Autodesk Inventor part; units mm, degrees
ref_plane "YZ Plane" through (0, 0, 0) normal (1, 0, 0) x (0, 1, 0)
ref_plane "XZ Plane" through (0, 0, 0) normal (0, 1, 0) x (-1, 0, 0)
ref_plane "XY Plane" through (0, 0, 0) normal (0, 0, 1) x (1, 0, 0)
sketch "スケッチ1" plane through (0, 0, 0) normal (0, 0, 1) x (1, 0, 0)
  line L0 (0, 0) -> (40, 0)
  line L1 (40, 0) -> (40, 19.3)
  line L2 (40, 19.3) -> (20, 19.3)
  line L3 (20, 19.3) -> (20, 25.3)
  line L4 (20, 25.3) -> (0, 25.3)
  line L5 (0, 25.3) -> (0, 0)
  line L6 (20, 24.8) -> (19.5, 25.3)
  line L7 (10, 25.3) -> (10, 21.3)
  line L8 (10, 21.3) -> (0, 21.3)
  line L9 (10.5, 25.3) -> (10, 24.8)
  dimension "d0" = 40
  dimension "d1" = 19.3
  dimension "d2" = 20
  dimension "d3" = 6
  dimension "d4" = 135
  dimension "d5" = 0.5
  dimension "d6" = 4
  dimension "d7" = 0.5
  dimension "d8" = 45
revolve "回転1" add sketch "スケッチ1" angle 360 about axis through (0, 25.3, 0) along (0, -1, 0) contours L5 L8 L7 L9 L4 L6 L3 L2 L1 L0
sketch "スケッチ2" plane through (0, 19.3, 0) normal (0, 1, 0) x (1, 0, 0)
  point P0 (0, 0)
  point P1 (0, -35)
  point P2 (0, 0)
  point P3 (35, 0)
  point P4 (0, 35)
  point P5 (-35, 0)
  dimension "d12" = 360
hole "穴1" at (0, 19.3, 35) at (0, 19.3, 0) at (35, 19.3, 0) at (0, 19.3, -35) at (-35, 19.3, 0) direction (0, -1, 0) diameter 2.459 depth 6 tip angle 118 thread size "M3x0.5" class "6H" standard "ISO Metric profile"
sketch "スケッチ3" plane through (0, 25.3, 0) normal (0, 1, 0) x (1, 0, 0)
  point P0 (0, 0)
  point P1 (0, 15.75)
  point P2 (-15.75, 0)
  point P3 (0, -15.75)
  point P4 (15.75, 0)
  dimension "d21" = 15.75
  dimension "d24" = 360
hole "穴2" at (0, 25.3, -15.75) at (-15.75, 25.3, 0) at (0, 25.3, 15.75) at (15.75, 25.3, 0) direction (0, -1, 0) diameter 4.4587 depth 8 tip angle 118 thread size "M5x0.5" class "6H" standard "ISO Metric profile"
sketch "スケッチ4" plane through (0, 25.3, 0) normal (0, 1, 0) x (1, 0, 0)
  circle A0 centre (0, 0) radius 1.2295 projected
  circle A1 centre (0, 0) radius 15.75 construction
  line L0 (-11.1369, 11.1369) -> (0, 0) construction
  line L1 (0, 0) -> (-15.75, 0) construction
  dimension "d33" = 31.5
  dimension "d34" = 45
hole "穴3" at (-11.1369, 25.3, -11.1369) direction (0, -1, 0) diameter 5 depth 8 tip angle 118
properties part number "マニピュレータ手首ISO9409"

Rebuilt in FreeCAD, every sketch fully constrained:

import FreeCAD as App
import Part
import Sketcher
Q = App.Units.Quantity


def add_polygon(sketch, points):
    """Adds a closed chain of lines whose ends are joined by coincident constraints."""
    first, n = sketch.GeometryCount, len(points)
    for a, b in zip(points, points[1:] + points[:1]):
        sketch.addGeometry(Part.LineSegment(App.Vector(*a, 0), App.Vector(*b, 0)), False)
    for i in range(n):
        sketch.addConstraint(Sketcher.Constraint("Coincident", first + i, 2, first + (i + 1) % n, 1))

doc = App.newDocument("Part")
body = doc.addObject("PartDesign::Body", "Body")

sketch1 = body.newObject("Sketcher::SketchObject", "Sketch")
sketch1.AttachmentSupport = (doc.getObject("XY_Plane"), [""])
sketch1.MapMode = "FlatFace"
add_polygon(sketch1, [(0, 21.3), (0, 0), (40, 0), (40, 19.3), (20, 19.3), (20, 24.8), (19.5, 25.3), (10.5, 25.3), (10, 24.8), (10, 21.3)])
sketch1.addConstraint(Sketcher.Constraint("Vertical", 0))
sketch1.addConstraint(Sketcher.Constraint("Horizontal", 1))
sketch1.addConstraint(Sketcher.Constraint("Vertical", 2))
sketch1.addConstraint(Sketcher.Constraint("Horizontal", 3))
sketch1.addConstraint(Sketcher.Constraint("Vertical", 4))
sketch1.addConstraint(Sketcher.Constraint("Horizontal", 6))
sketch1.addConstraint(Sketcher.Constraint("Vertical", 8))
sketch1.addConstraint(Sketcher.Constraint("Horizontal", 9))
sketch1.addConstraint(Sketcher.Constraint("Coincident", 0, 2, -1, 1))
sketch1.addConstraint(Sketcher.Constraint("Perpendicular", 5, 7))
sketch1.addConstraint(Sketcher.Constraint("Horizontal", 4, 2, 7, 2))
sketch1.addConstraint(Sketcher.Constraint("Equal", 5, 7))
sketch1.addConstraint(Sketcher.Constraint("DistanceX", 1, 1, 1, 2, Q("40 mm")))
sketch1.addConstraint(Sketcher.Constraint("DistanceX", 3, 2, 3, 1, Q("20 mm")))
sketch1.addConstraint(Sketcher.Constraint("DistanceY", 2, 1, 2, 2, Q("19.3 mm")))
sketch1.addConstraint(Sketcher.Constraint("DistanceY", 3, 2, 5, 2, Q("6 mm")))
sketch1.addConstraint(Sketcher.Constraint("DistanceY", 8, 2, 6, 2, Q("4 mm")))
sketch1.addConstraint(Sketcher.Constraint("DistanceX", 5, 2, 4, 2, Q("0.5 mm")))
sketch1.addConstraint(Sketcher.Constraint("DistanceX", 6, 2, 6, 1, Q("9 mm")))
revolution = body.newObject("PartDesign::Revolution", "Revolution")
revolution.Profile = sketch1
revolution.ReferenceAxis = (sketch1, ["V_Axis"])
revolution.Angle = 360

sketch2 = body.newObject("Sketcher::SketchObject", "Sketch001")
sketch2.AttachmentSupport = (doc.getObject("XZ_Plane"), [""])
sketch2.MapMode = "FlatFace"
sketch2.AttachmentOffset = App.Placement(App.Vector(0, 0, -19.3), App.Rotation())
sketch2.addGeometry(Part.Circle(App.Vector(0, 35, 0), App.Vector(0, 0, 1), 1.2), False)
sketch2.addGeometry(Part.Circle(App.Vector(0, 0, 0), App.Vector(0, 0, 1), 1.2), False)
sketch2.addGeometry(Part.Circle(App.Vector(35, 0, 0), App.Vector(0, 0, 1), 1.2), False)
sketch2.addGeometry(Part.Circle(App.Vector(0, -35, 0), App.Vector(0, 0, 1), 1.2), False)
sketch2.addGeometry(Part.Circle(App.Vector(-35, 0, 0), App.Vector(0, 0, 1), 1.2), False)
sketch2.addConstraint(Sketcher.Constraint("Coincident", 1, 3, -1, 1))
sketch2.addConstraint(Sketcher.Constraint("Equal", 0, 1))
sketch2.addConstraint(Sketcher.Constraint("Equal", 1, 2))
sketch2.addConstraint(Sketcher.Constraint("Equal", 2, 3))
sketch2.addConstraint(Sketcher.Constraint("Equal", 3, 4))
sketch2.addConstraint(Sketcher.Constraint("Symmetric", 0, 3, 3, 3, -1, 1))
sketch2.addConstraint(Sketcher.Constraint("Symmetric", 2, 3, 4, 3, -1, 1))
sketch2.addConstraint(Sketcher.Constraint("PointOnObject", 0, 3, -2))
sketch2.addConstraint(Sketcher.Constraint("PointOnObject", 2, 3, -1))
sketch2.addConstraint(Sketcher.Constraint("Diameter", 0, Q("2.459 mm")))
sketch2.addConstraint(Sketcher.Constraint("DistanceY", -1, 1, 0, 3, Q("35 mm")))
sketch2.addConstraint(Sketcher.Constraint("DistanceX", -1, 1, 2, 3, Q("35 mm")))
doc.recompute()
hole = body.newObject("PartDesign::Hole", "Hole")
hole.Profile = sketch2
hole.ThreadType = "None"
hole.Diameter = 2.459
hole.DepthType = "Dimension"
hole.Depth = 6
hole.DrillPoint = "Angled"
hole.DrillPointAngle = 118
hole.Reversed = True

sketch3 = body.newObject("Sketcher::SketchObject", "Sketch002")
sketch3.AttachmentSupport = (doc.getObject("XZ_Plane"), [""])
sketch3.MapMode = "FlatFace"
sketch3.AttachmentOffset = App.Placement(App.Vector(0, 0, -25.3), App.Rotation())
sketch3.addGeometry(Part.Circle(App.Vector(0, -15.8, 0), App.Vector(0, 0, 1), 2.2), False)
sketch3.addGeometry(Part.Circle(App.Vector(-15.8, 0, 0), App.Vector(0, 0, 1), 2.2), False)
sketch3.addGeometry(Part.Circle(App.Vector(0, 15.8, 0), App.Vector(0, 0, 1), 2.2), False)
sketch3.addGeometry(Part.Circle(App.Vector(15.8, 0, 0), App.Vector(0, 0, 1), 2.2), False)
sketch3.addConstraint(Sketcher.Constraint("Equal", 0, 1))
sketch3.addConstraint(Sketcher.Constraint("Equal", 1, 2))
sketch3.addConstraint(Sketcher.Constraint("Equal", 2, 3))
sketch3.addConstraint(Sketcher.Constraint("Symmetric", 0, 3, 2, 3, -1, 1))
sketch3.addConstraint(Sketcher.Constraint("Symmetric", 1, 3, 3, 3, -1, 1))
sketch3.addConstraint(Sketcher.Constraint("PointOnObject", 0, 3, -2))
sketch3.addConstraint(Sketcher.Constraint("PointOnObject", 1, 3, -1))
sketch3.addConstraint(Sketcher.Constraint("Diameter", 0, Q("4.4587 mm")))
sketch3.addConstraint(Sketcher.Constraint("DistanceY", 0, 3, 2, 3, Q("31.5 mm")))
sketch3.addConstraint(Sketcher.Constraint("DistanceX", 1, 3, 3, 3, Q("31.5 mm")))
doc.recompute()
hole2 = body.newObject("PartDesign::Hole", "Hole001")
hole2.Profile = sketch3
hole2.ThreadType = "None"
hole2.Diameter = 4.4587
hole2.DepthType = "Dimension"
hole2.Depth = 8
hole2.DrillPoint = "Angled"
hole2.DrillPointAngle = 118
hole2.Reversed = True

sketch4 = body.newObject("Sketcher::SketchObject", "Sketch003")
sketch4.AttachmentSupport = (doc.getObject("XZ_Plane"), [""])
sketch4.MapMode = "FlatFace"
sketch4.AttachmentOffset = App.Placement(App.Vector(0, 0, -25.3), App.Rotation())
sketch4.addGeometry(Part.Circle(App.Vector(-11.1, -11.1, 0), App.Vector(0, 0, 1), 2.5), False)
sketch4.addConstraint(Sketcher.Constraint("Diameter", 0, Q("5 mm")))
sketch4.addConstraint(Sketcher.Constraint("DistanceX", 0, 3, -1, 1, Q("11.137 mm")))
sketch4.addConstraint(Sketcher.Constraint("DistanceY", 0, 3, -1, 1, Q("11.137 mm")))
doc.recompute()
hole3 = body.newObject("PartDesign::Hole", "Hole002")
hole3.Profile = sketch4
hole3.ThreadType = "None"
hole3.Diameter = 5
hole3.DepthType = "Dimension"
hole3.Depth = 8
hole3.DrillPoint = "Angled"
hole3.DrillPointAngle = 118
hole3.Reversed = True

doc.recompute()
